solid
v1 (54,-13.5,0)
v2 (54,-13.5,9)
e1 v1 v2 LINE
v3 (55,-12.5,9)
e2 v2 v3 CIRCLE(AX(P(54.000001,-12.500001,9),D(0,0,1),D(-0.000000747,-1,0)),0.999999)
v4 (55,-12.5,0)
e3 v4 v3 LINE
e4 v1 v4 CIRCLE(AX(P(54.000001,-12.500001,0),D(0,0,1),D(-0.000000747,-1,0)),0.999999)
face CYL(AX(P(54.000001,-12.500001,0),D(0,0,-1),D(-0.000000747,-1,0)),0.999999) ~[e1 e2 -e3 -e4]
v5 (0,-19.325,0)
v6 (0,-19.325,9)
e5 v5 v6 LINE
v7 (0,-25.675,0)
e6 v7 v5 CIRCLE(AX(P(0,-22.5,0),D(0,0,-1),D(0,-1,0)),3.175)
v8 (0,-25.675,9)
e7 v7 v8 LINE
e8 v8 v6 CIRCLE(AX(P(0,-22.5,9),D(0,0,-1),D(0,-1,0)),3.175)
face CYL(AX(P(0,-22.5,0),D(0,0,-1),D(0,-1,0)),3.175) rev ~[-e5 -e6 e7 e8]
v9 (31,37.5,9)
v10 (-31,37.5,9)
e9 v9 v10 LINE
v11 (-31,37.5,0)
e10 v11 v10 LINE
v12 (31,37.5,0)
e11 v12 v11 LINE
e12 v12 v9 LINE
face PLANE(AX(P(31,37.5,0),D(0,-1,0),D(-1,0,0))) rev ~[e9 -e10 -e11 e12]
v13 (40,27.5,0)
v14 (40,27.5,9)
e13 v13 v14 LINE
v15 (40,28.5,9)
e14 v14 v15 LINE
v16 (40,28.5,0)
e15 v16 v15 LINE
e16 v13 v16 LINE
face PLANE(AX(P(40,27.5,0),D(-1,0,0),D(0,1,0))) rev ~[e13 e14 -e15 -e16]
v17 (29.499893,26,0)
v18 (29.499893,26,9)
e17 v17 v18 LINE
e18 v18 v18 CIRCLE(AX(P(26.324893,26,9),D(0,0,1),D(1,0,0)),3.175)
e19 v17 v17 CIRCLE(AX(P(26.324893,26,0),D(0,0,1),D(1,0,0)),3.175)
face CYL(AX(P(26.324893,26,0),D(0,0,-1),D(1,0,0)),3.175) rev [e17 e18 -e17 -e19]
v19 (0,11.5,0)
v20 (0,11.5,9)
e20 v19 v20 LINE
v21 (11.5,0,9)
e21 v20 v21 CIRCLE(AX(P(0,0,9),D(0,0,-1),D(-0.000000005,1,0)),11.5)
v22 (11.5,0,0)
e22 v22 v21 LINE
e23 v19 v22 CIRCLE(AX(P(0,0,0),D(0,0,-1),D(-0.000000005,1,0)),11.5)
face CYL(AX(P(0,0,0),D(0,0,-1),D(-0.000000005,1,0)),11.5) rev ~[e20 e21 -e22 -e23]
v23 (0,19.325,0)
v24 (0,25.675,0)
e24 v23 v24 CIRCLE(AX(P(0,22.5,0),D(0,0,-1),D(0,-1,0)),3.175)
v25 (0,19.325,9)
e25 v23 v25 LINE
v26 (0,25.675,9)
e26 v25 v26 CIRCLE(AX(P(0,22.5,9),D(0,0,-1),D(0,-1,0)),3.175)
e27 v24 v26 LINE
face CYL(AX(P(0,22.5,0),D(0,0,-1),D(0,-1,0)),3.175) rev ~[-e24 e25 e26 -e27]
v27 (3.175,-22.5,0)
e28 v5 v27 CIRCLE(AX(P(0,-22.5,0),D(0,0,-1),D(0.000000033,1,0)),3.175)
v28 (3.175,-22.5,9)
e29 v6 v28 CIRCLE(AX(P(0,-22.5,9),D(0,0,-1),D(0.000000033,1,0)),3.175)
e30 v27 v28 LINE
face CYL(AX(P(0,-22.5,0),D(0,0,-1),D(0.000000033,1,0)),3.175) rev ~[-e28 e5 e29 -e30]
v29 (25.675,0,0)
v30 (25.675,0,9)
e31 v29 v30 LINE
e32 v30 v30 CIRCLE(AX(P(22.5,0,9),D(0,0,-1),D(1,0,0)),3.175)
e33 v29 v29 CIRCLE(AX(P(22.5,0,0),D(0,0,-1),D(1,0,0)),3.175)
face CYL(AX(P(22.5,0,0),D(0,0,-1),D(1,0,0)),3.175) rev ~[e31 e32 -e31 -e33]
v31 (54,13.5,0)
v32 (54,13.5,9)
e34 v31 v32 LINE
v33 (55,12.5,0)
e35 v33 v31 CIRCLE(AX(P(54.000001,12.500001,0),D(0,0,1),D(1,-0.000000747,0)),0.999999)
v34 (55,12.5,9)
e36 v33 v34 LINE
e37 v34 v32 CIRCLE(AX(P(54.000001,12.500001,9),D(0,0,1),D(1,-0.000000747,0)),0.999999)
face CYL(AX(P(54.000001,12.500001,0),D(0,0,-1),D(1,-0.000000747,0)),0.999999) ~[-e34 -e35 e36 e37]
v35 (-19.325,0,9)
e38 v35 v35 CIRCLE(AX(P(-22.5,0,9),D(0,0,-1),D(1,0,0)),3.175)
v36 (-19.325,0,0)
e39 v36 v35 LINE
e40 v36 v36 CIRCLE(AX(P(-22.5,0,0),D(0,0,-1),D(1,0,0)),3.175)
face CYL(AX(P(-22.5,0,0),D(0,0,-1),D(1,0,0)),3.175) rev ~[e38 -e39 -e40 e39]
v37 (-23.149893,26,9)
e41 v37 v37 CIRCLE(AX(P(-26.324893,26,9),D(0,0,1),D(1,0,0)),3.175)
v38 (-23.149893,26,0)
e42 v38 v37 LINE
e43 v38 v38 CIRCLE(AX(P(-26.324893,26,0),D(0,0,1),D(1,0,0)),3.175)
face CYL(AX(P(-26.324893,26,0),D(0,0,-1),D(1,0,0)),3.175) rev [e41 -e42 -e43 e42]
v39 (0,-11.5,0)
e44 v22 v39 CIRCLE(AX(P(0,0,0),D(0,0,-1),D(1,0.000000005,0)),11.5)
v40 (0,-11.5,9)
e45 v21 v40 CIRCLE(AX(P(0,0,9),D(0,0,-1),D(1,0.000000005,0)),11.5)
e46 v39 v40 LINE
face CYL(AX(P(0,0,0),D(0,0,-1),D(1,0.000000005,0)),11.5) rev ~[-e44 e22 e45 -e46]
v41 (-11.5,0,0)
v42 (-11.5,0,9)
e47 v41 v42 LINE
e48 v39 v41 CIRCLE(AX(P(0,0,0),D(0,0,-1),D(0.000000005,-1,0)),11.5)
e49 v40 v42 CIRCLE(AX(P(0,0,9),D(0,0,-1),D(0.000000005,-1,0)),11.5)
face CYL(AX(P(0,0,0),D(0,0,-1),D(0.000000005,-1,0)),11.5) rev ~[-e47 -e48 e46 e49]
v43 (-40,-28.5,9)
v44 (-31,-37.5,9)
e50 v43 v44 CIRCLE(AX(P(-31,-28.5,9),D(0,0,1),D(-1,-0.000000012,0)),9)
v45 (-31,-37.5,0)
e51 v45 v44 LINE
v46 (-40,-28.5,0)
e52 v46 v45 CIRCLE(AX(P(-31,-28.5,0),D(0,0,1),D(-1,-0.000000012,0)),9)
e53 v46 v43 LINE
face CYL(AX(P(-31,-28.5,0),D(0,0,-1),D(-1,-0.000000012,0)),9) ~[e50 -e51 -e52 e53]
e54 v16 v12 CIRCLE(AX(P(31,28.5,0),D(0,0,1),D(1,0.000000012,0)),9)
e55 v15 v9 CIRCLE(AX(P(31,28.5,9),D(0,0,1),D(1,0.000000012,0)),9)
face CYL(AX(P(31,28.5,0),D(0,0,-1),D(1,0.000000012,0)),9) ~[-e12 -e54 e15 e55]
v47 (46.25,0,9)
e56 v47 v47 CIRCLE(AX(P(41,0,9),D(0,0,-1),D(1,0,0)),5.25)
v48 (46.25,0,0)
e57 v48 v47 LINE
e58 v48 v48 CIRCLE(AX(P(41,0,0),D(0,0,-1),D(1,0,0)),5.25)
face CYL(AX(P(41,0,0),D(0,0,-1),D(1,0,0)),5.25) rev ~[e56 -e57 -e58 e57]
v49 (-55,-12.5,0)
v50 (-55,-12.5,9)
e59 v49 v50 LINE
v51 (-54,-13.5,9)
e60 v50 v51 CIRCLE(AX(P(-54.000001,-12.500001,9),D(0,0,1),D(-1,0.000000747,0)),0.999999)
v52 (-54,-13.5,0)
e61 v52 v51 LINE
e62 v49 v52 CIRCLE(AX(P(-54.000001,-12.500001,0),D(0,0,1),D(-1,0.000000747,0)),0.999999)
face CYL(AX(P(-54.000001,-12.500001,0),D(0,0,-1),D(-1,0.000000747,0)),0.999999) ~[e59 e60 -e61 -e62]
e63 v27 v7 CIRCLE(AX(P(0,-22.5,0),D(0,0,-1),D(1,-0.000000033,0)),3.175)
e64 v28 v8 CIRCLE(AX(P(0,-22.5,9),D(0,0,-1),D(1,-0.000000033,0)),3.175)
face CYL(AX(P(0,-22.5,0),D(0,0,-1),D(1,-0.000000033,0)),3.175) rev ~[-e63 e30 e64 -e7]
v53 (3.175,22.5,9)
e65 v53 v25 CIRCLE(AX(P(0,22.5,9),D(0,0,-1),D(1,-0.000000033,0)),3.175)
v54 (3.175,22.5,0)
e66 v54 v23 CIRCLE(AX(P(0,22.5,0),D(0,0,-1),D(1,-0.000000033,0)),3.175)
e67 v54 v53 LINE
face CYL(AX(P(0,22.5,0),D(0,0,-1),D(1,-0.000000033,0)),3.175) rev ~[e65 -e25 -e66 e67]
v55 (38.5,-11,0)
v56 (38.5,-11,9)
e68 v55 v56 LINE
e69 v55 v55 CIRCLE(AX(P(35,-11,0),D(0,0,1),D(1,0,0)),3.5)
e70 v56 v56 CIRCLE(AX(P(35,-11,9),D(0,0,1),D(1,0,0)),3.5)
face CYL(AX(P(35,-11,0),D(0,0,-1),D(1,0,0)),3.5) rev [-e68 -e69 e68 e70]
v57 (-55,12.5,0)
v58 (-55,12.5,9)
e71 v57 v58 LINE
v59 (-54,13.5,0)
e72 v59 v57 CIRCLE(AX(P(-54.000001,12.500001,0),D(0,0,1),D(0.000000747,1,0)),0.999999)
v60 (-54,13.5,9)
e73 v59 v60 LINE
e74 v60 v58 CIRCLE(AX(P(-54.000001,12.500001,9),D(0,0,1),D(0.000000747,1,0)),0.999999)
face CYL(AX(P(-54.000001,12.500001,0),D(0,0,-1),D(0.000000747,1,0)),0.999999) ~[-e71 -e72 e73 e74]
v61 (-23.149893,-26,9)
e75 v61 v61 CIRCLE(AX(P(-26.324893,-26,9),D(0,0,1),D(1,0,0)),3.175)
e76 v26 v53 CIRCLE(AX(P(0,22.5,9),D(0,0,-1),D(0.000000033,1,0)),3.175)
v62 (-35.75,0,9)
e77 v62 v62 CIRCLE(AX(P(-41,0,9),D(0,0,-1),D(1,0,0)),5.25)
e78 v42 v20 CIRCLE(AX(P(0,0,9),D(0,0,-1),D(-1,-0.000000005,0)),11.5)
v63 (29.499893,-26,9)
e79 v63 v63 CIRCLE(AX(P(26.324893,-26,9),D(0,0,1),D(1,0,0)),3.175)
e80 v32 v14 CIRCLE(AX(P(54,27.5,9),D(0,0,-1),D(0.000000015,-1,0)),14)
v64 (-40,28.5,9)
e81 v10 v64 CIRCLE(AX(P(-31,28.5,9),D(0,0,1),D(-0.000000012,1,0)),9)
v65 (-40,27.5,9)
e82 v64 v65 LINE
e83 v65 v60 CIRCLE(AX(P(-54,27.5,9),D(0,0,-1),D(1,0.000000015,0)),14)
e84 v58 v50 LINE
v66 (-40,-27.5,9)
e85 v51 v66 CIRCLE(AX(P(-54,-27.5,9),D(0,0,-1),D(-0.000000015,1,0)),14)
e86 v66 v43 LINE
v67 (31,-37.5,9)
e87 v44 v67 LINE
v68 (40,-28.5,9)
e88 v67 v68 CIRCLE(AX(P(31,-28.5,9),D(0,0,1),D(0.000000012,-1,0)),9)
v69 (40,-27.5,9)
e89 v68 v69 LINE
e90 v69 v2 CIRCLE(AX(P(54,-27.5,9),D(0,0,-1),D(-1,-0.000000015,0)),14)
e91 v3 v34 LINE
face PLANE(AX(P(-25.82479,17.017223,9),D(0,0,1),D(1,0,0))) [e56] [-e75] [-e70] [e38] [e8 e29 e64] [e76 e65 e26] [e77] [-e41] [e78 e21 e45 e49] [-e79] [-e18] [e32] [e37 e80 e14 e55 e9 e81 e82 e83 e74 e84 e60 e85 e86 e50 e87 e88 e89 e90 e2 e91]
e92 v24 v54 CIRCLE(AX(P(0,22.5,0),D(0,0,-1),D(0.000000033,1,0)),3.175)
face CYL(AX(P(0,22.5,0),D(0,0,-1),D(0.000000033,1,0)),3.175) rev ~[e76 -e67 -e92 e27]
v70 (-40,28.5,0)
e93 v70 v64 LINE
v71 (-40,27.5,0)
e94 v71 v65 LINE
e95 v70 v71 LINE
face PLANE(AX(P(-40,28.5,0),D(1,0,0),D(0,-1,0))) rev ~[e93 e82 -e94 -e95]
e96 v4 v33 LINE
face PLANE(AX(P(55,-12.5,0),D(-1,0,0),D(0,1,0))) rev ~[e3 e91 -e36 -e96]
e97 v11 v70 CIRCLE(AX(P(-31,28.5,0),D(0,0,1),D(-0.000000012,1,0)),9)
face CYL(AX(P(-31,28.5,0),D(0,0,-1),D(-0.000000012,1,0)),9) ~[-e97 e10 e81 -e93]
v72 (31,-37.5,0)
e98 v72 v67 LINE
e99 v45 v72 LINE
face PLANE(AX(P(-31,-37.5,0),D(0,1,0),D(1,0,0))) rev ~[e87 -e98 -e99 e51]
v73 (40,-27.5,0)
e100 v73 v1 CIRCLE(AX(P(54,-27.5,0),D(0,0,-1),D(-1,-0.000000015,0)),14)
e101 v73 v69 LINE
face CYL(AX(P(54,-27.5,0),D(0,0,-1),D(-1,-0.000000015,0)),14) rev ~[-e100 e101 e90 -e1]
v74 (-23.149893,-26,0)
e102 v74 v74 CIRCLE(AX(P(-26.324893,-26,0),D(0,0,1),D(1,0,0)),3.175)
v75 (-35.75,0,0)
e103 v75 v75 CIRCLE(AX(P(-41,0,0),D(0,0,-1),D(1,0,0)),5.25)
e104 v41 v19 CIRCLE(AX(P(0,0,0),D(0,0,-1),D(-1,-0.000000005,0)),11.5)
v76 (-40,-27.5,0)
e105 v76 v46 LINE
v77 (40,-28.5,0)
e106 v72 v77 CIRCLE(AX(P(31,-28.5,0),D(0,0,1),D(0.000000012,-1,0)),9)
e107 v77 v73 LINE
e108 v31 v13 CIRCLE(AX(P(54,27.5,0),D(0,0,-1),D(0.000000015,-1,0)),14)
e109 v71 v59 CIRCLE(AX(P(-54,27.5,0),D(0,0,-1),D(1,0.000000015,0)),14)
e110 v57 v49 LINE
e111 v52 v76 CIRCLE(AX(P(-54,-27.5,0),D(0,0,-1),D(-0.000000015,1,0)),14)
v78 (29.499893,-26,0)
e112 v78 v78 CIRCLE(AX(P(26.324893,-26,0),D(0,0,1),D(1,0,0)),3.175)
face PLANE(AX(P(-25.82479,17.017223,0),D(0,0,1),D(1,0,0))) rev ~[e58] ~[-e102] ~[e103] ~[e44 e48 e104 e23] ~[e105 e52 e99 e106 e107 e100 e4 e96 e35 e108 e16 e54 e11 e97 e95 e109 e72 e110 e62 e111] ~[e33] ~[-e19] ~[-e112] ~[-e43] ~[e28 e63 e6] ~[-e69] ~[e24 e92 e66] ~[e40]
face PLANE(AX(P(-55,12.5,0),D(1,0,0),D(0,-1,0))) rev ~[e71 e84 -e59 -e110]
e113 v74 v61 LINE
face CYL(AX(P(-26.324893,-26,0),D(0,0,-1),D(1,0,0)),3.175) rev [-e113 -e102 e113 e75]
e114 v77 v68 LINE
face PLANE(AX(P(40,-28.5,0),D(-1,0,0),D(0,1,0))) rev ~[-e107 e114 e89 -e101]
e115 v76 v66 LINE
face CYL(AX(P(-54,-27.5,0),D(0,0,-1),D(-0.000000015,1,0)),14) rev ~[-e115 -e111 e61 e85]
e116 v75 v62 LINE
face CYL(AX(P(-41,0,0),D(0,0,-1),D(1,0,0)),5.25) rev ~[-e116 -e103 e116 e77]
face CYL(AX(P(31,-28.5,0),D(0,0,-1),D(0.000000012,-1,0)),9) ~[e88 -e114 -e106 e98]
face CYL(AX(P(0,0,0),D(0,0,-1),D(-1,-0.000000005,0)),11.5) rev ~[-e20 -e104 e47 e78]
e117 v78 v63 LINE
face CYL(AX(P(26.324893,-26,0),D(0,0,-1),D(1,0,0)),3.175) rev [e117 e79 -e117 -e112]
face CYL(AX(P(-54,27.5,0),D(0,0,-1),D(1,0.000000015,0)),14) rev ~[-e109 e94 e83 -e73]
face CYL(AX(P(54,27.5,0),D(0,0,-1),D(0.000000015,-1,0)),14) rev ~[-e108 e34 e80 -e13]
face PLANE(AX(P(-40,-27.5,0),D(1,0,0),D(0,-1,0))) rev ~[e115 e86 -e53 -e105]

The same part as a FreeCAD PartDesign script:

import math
import FreeCAD as App
import Part
import Sketcher
Q = App.Units.Quantity

doc = App.newDocument("Part")
body = doc.addObject("PartDesign::Body", "Body")

sketch1 = doc.addObject("Sketcher::SketchObject", "Sketch")
body.addObject(sketch1)
sketch1.AttachmentSupport = (doc.XY_Plane, [""])
sketch1.MapMode = "FlatFace"
sketch1.addGeometry(Part.ArcOfCircle(Part.Circle(App.Vector(-31, 28.5, 0), App.Vector(0, 0, 1), 9), math.radians(90), math.radians(180)), False)
sketch1.addGeometry(Part.LineSegment(App.Vector(-40, 28.5, 0), App.Vector(-40, 27.5, 0)), False)
sketch1.addGeometry(Part.ArcOfCircle(Part.Circle(App.Vector(-54, 27.5, 0), App.Vector(0, 0, 1), 14), math.radians(-90), math.radians(0)), False)
sketch1.addGeometry(Part.ArcOfCircle(Part.Circle(App.Vector(-54, 12.5, 0), App.Vector(0, 0, 1), 1), math.radians(90), math.radians(180)), False)
sketch1.addGeometry(Part.LineSegment(App.Vector(-55, 12.5, 0), App.Vector(-55, -12.5, 0)), False)
sketch1.addGeometry(Part.ArcOfCircle(Part.Circle(App.Vector(-54, -12.5, 0), App.Vector(0, 0, 1), 1), math.radians(180), math.radians(270)), False)
sketch1.addGeometry(Part.ArcOfCircle(Part.Circle(App.Vector(-54, -27.5, 0), App.Vector(0, 0, 1), 14), math.radians(0), math.radians(90)), False)
sketch1.addGeometry(Part.LineSegment(App.Vector(-40, -27.5, 0), App.Vector(-40, -28.5, 0)), False)
sketch1.addGeometry(Part.ArcOfCircle(Part.Circle(App.Vector(-31, -28.5, 0), App.Vector(0, 0, 1), 9), math.radians(-180), math.radians(-90)), False)
sketch1.addGeometry(Part.LineSegment(App.Vector(-31, -37.5, 0), App.Vector(31, -37.5, 0)), False)
sketch1.addGeometry(Part.ArcOfCircle(Part.Circle(App.Vector(31, -28.5, 0), App.Vector(0, 0, 1), 9), math.radians(-90), math.radians(0)), False)
sketch1.addGeometry(Part.LineSegment(App.Vector(40, -28.5, 0), App.Vector(40, -27.5, 0)), False)
sketch1.addGeometry(Part.ArcOfCircle(Part.Circle(App.Vector(54, -27.5, 0), App.Vector(0, 0, 1), 14), math.radians(90), math.radians(180)), False)
sketch1.addGeometry(Part.ArcOfCircle(Part.Circle(App.Vector(54, -12.5, 0), App.Vector(0, 0, 1), 1), math.radians(-90), math.radians(0)), False)
sketch1.addGeometry(Part.LineSegment(App.Vector(55, -12.5, 0), App.Vector(55, 12.5, 0)), False)
sketch1.addGeometry(Part.ArcOfCircle(Part.Circle(App.Vector(54, 12.5, 0), App.Vector(0, 0, 1), 1), math.radians(0), math.radians(90)), False)
sketch1.addGeometry(Part.ArcOfCircle(Part.Circle(App.Vector(54, 27.5, 0), App.Vector(0, 0, 1), 14), math.radians(180), math.radians(270)), False)
sketch1.addGeometry(Part.LineSegment(App.Vector(40, 27.5, 0), App.Vector(40, 28.5, 0)), False)
sketch1.addGeometry(Part.ArcOfCircle(Part.Circle(App.Vector(31, 28.5, 0), App.Vector(0, 0, 1), 9), math.radians(0), math.radians(90)), False)
sketch1.addGeometry(Part.LineSegment(App.Vector(31, 37.5, 0), App.Vector(-31, 37.5, 0)), False)
sketch1.addGeometry(Part.Circle(App.Vector(-26.3, -26, 0), App.Vector(0, 0, 1), 3.2), False)
sketch1.addGeometry(Part.Circle(App.Vector(-41, 0, 0), App.Vector(0, 0, 1), 5.2), False)
sketch1.addGeometry(Part.Circle(App.Vector(-22.5, 0, 0), App.Vector(0, 0, 1), 3.2), False)
sketch1.addGeometry(Part.ArcOfCircle(Part.Circle(App.Vector(0, -22.5, 0), App.Vector(0, 0, 1), 3.2), math.radians(-90), math.radians(0)), False)
sketch1.addGeometry(Part.ArcOfCircle(Part.Circle(App.Vector(0, -22.5, 0), App.Vector(0, 0, 1), 3.2), math.radians(90), math.radians(270)), False)
sketch1.addGeometry(Part.ArcOfCircle(Part.Circle(App.Vector(0, -22.5, 0), App.Vector(0, 0, 1), 3.2), math.radians(0), math.radians(90)), False)
sketch1.addGeometry(Part.Circle(App.Vector(26.3, -26, 0), App.Vector(0, 0, 1), 3.2), False)
sketch1.addGeometry(Part.ArcOfCircle(Part.Circle(App.Vector(0, 0, 0), App.Vector(0, 0, 1), 11.5), math.radians(90), math.radians(180)), False)
sketch1.addGeometry(Part.ArcOfCircle(Part.Circle(App.Vector(0, 0, 0), App.Vector(0, 0, 1), 11.5), math.radians(0), math.radians(90)), False)
sketch1.addGeometry(Part.ArcOfCircle(Part.Circle(App.Vector(0, 0, 0), App.Vector(0, 0, 1), 11.5), math.radians(-90), math.radians(0)), False)
sketch1.addGeometry(Part.ArcOfCircle(Part.Circle(App.Vector(0, 0, 0), App.Vector(0, 0, 1), 11.5), math.radians(180), math.radians(270)), False)
sketch1.addGeometry(Part.Circle(App.Vector(22.5, 0, 0), App.Vector(0, 0, 1), 3.2), False)
sketch1.addGeometry(Part.Circle(App.Vector(35, -11, 0), App.Vector(0, 0, 1), 3.5), False)
sketch1.addGeometry(Part.Circle(App.Vector(41, 0, 0), App.Vector(0, 0, 1), 5.2), False)
sketch1.addGeometry(Part.Circle(App.Vector(-26.3, 26, 0), App.Vector(0, 0, 1), 3.2), False)
sketch1.addGeometry(Part.ArcOfCircle(Part.Circle(App.Vector(0, 22.5, 0), App.Vector(0, 0, 1), 3.2), math.radians(90), math.radians(270)), False)
sketch1.addGeometry(Part.ArcOfCircle(Part.Circle(App.Vector(0, 22.5, 0), App.Vector(0, 0, 1), 3.2), math.radians(0), math.radians(90)), False)
sketch1.addGeometry(Part.ArcOfCircle(Part.Circle(App.Vector(0, 22.5, 0), App.Vector(0, 0, 1), 3.2), math.radians(-90), math.radians(0)), False)
sketch1.addGeometry(Part.Circle(App.Vector(26.3, 26, 0), App.Vector(0, 0, 1), 3.2), False)
sketch1.addConstraint(Sketcher.Constraint("Tangent", 0, 2, 1, 1))
sketch1.addConstraint(Sketcher.Constraint("Tangent", 1, 2, 2, 2))
sketch1.addConstraint(Sketcher.Constraint("Tangent", 2, 1, 3, 1))
sketch1.addConstraint(Sketcher.Constraint("Tangent", 3, 2, 4, 1))
sketch1.addConstraint(Sketcher.Constraint("Tangent", 4, 2, 5, 1))
sketch1.addConstraint(Sketcher.Constraint("Tangent", 5, 2, 6, 2))
sketch1.addConstraint(Sketcher.Constraint("Tangent", 6, 1, 7, 1))
sketch1.addConstraint(Sketcher.Constraint("Tangent", 7, 2, 8, 1))
sketch1.addConstraint(Sketcher.Constraint("Tangent", 8, 2, 9, 1))
sketch1.addConstraint(Sketcher.Constraint("Tangent", 9, 2, 10, 1))
sketch1.addConstraint(Sketcher.Constraint("Tangent", 10, 2, 11, 1))
sketch1.addConstraint(Sketcher.Constraint("Tangent", 11, 2, 12, 2))
sketch1.addConstraint(Sketcher.Constraint("Tangent", 12, 1, 13, 1))
sketch1.addConstraint(Sketcher.Constraint("Tangent", 13, 2, 14, 1))
sketch1.addConstraint(Sketcher.Constraint("Tangent", 14, 2, 15, 1))
sketch1.addConstraint(Sketcher.Constraint("Tangent", 15, 2, 16, 2))
sketch1.addConstraint(Sketcher.Constraint("Tangent", 16, 1, 17, 1))
sketch1.addConstraint(Sketcher.Constraint("Tangent", 17, 2, 18, 1))
sketch1.addConstraint(Sketcher.Constraint("Tangent", 18, 2, 19, 1))
sketch1.addConstraint(Sketcher.Constraint("Tangent", 19, 2, 0, 1))
sketch1.addConstraint(Sketcher.Constraint("Tangent", 23, 1, 24, 2))
sketch1.addConstraint(Sketcher.Constraint("Tangent", 24, 1, 25, 2))
sketch1.addConstraint(Sketcher.Constraint("Tangent", 25, 1, 23, 2))
sketch1.addConstraint(Sketcher.Constraint("Tangent", 27, 1, 28, 2))
sketch1.addConstraint(Sketcher.Constraint("Tangent", 28, 1, 29, 2))
sketch1.addConstraint(Sketcher.Constraint("Tangent", 29, 1, 30, 2))
sketch1.addConstraint(Sketcher.Constraint("Tangent", 30, 1, 27, 2))
sketch1.addConstraint(Sketcher.Constraint("Tangent", 35, 1, 36, 2))
sketch1.addConstraint(Sketcher.Constraint("Tangent", 36, 1, 37, 2))
sketch1.addConstraint(Sketcher.Constraint("Tangent", 37, 1, 35, 2))
sketch1.addConstraint(Sketcher.Constraint("Vertical", 1))
sketch1.addConstraint(Sketcher.Constraint("Vertical", 4))
sketch1.addConstraint(Sketcher.Constraint("Vertical", 7))
sketch1.addConstraint(Sketcher.Constraint("Horizontal", 9))
sketch1.addConstraint(Sketcher.Constraint("Vertical", 11))
sketch1.addConstraint(Sketcher.Constraint("Vertical", 14))
sketch1.addConstraint(Sketcher.Constraint("Vertical", 17))
sketch1.addConstraint(Sketcher.Constraint("Horizontal", 19))
sketch1.addConstraint(Sketcher.Constraint("Coincident", 27, 3, -1, 1))
sketch1.addConstraint(Sketcher.Constraint("Equal", 3, 5))
sketch1.addConstraint(Sketcher.Constraint("Equal", 2, 6))
sketch1.addConstraint(Sketcher.Constraint("Equal", 0, 8))
sketch1.addConstraint(Sketcher.Constraint("Equal", 8, 10))
sketch1.addConstraint(Sketcher.Constraint("Equal", 6, 12))
sketch1.addConstraint(Sketcher.Constraint("Equal", 5, 13))
sketch1.addConstraint(Sketcher.Constraint("Equal", 13, 15))
sketch1.addConstraint(Sketcher.Constraint("Equal", 12, 16))
sketch1.addConstraint(Sketcher.Constraint("Equal", 10, 18))
sketch1.addConstraint(Sketcher.Constraint("Equal", 20, 22))
sketch1.addConstraint(Sketcher.Constraint("Equal", 22, 23))
sketch1.addConstraint(Sketcher.Constraint("Equal", 25, 26))
sketch1.addConstraint(Sketcher.Constraint("Equal", 27, 28))
sketch1.addConstraint(Sketcher.Constraint("Equal", 26, 31))
sketch1.addConstraint(Sketcher.Constraint("Equal", 21, 33))
sketch1.addConstraint(Sketcher.Constraint("Equal", 31, 34))
sketch1.addConstraint(Sketcher.Constraint("Equal", 34, 35))
sketch1.addConstraint(Sketcher.Constraint("Equal", 37, 38))
sketch1.addConstraint(Sketcher.Constraint("Symmetric", 0, 3, 10, 3, -1, 1))
sketch1.addConstraint(Sketcher.Constraint("Symmetric", 3, 3, 13, 3, -1, 1))
sketch1.addConstraint(Sketcher.Constraint("Symmetric", 6, 3, 16, 3, -1, 1))
sketch1.addConstraint(Sketcher.Constraint("Symmetric", 22, 3, 31, 3, -1, 1))
sketch1.addConstraint(Sketcher.Constraint("Symmetric", 21, 3, 33, 3, -1, 1))
sketch1.addConstraint(Sketcher.Constraint("Symmetric", 26, 3, 34, 3, -1, 1))
sketch1.addConstraint(Sketcher.Constraint("Symmetric", 23, 3, 35, 3, -1, 1))
sketch1.addConstraint(Sketcher.Constraint("Symmetric", 20, 3, 38, 3, -1, 1))
sketch1.addConstraint(Sketcher.Constraint("Symmetric", 6, 3, 12, 3, -2))
sketch1.addConstraint(Sketcher.Constraint("Symmetric", 20, 3, 26, 3, -2))
sketch1.addConstraint(Sketcher.Constraint("Symmetric", 25, 1, 36, 1, -1))
sketch1.addConstraint(Sketcher.Constraint("PointOnObject", 21, 3, -1))
sketch1.addConstraint(Sketcher.Constraint("PointOnObject", 22, 3, -1))
sketch1.addConstraint(Sketcher.Constraint("PointOnObject", 23, 1, -2))
sketch1.addConstraint(Sketcher.Constraint("PointOnObject", 24, 1, -2))
sketch1.addConstraint(Sketcher.Constraint("PointOnObject", 27, 1, -2))
sketch1.addConstraint(Sketcher.Constraint("PointOnObject", 28, 1, -1))
sketch1.addConstraint(Sketcher.Constraint("PointOnObject", 29, 1, -2))
sketch1.addConstraint(Sketcher.Constraint("PointOnObject", 30, 1, -1))
sketch1.addConstraint(Sketcher.Constraint("PointOnObject", 35, 1, -2))
sketch1.addConstraint(Sketcher.Constraint("PointOnObject", 37, 1, -2))
sketch1.addConstraint(Sketcher.Constraint("Horizontal", 24, 3, 25, 1))
sketch1.addConstraint(Sketcher.Constraint("Vertical", 2, 3, 3, 3))
sketch1.addConstraint(Sketcher.Constraint("Diameter", 32, Q("7 mm")))
sketch1.addConstraint(Sketcher.Constraint("Radius", 0, Q("9 mm")))
sketch1.addConstraint(Sketcher.Constraint("Radius", 2, Q("14 mm")))
sketch1.addConstraint(Sketcher.Constraint("Radius", 3, Q("0.999999 mm")))
sketch1.addConstraint(Sketcher.Constraint("Diameter", 21, Q("10.5 mm")))
sketch1.addConstraint(Sketcher.Constraint("Radius", 27, Q("11.5 mm")))
sketch1.addConstraint(Sketcher.Constraint("Diameter", 20, Q("6.35 mm")))
sketch1.addConstraint(Sketcher.Constraint("DistanceX", 9, 1, 9, 2, Q("62 mm")))
sketch1.addConstraint(Sketcher.Constraint("DistanceY", 1, 2, 1, 1, Q("1 mm")))
sketch1.addConstraint(Sketcher.Constraint("DistanceY", 4, 2, 4, 1, Q("25 mm")))
sketch1.addConstraint(Sketcher.Constraint("DistanceY", 20, 3, -1, 1, Q("26 mm")))
sketch1.addConstraint(Sketcher.Constraint("DistanceX", 21, 3, -1, 1, Q("41 mm")))
sketch1.addConstraint(Sketcher.Constraint("DistanceX", -1, 1, 32, 3, Q("35 mm")))
sketch1.addConstraint(Sketcher.Constraint("DistanceY", 32, 3, -1, 1, Q("11 mm")))
sketch1.addConstraint(Sketcher.Constraint("DistanceX", 22, 3, -1, 1, Q("22.5 mm")))
sketch1.addConstraint(Sketcher.Constraint("DistanceY", 23, 3, -1, 1, Q("22.5 mm")))
sketch1.addConstraint(Sketcher.Constraint("DistanceX", 20, 3, -1, 1, Q("26.324893 mm")))
pad1 = doc.addObject("PartDesign::Pad", "Pad")
body.addObject(pad1)
pad1.Profile = sketch1
pad1.Length = 9

doc.recompute()
